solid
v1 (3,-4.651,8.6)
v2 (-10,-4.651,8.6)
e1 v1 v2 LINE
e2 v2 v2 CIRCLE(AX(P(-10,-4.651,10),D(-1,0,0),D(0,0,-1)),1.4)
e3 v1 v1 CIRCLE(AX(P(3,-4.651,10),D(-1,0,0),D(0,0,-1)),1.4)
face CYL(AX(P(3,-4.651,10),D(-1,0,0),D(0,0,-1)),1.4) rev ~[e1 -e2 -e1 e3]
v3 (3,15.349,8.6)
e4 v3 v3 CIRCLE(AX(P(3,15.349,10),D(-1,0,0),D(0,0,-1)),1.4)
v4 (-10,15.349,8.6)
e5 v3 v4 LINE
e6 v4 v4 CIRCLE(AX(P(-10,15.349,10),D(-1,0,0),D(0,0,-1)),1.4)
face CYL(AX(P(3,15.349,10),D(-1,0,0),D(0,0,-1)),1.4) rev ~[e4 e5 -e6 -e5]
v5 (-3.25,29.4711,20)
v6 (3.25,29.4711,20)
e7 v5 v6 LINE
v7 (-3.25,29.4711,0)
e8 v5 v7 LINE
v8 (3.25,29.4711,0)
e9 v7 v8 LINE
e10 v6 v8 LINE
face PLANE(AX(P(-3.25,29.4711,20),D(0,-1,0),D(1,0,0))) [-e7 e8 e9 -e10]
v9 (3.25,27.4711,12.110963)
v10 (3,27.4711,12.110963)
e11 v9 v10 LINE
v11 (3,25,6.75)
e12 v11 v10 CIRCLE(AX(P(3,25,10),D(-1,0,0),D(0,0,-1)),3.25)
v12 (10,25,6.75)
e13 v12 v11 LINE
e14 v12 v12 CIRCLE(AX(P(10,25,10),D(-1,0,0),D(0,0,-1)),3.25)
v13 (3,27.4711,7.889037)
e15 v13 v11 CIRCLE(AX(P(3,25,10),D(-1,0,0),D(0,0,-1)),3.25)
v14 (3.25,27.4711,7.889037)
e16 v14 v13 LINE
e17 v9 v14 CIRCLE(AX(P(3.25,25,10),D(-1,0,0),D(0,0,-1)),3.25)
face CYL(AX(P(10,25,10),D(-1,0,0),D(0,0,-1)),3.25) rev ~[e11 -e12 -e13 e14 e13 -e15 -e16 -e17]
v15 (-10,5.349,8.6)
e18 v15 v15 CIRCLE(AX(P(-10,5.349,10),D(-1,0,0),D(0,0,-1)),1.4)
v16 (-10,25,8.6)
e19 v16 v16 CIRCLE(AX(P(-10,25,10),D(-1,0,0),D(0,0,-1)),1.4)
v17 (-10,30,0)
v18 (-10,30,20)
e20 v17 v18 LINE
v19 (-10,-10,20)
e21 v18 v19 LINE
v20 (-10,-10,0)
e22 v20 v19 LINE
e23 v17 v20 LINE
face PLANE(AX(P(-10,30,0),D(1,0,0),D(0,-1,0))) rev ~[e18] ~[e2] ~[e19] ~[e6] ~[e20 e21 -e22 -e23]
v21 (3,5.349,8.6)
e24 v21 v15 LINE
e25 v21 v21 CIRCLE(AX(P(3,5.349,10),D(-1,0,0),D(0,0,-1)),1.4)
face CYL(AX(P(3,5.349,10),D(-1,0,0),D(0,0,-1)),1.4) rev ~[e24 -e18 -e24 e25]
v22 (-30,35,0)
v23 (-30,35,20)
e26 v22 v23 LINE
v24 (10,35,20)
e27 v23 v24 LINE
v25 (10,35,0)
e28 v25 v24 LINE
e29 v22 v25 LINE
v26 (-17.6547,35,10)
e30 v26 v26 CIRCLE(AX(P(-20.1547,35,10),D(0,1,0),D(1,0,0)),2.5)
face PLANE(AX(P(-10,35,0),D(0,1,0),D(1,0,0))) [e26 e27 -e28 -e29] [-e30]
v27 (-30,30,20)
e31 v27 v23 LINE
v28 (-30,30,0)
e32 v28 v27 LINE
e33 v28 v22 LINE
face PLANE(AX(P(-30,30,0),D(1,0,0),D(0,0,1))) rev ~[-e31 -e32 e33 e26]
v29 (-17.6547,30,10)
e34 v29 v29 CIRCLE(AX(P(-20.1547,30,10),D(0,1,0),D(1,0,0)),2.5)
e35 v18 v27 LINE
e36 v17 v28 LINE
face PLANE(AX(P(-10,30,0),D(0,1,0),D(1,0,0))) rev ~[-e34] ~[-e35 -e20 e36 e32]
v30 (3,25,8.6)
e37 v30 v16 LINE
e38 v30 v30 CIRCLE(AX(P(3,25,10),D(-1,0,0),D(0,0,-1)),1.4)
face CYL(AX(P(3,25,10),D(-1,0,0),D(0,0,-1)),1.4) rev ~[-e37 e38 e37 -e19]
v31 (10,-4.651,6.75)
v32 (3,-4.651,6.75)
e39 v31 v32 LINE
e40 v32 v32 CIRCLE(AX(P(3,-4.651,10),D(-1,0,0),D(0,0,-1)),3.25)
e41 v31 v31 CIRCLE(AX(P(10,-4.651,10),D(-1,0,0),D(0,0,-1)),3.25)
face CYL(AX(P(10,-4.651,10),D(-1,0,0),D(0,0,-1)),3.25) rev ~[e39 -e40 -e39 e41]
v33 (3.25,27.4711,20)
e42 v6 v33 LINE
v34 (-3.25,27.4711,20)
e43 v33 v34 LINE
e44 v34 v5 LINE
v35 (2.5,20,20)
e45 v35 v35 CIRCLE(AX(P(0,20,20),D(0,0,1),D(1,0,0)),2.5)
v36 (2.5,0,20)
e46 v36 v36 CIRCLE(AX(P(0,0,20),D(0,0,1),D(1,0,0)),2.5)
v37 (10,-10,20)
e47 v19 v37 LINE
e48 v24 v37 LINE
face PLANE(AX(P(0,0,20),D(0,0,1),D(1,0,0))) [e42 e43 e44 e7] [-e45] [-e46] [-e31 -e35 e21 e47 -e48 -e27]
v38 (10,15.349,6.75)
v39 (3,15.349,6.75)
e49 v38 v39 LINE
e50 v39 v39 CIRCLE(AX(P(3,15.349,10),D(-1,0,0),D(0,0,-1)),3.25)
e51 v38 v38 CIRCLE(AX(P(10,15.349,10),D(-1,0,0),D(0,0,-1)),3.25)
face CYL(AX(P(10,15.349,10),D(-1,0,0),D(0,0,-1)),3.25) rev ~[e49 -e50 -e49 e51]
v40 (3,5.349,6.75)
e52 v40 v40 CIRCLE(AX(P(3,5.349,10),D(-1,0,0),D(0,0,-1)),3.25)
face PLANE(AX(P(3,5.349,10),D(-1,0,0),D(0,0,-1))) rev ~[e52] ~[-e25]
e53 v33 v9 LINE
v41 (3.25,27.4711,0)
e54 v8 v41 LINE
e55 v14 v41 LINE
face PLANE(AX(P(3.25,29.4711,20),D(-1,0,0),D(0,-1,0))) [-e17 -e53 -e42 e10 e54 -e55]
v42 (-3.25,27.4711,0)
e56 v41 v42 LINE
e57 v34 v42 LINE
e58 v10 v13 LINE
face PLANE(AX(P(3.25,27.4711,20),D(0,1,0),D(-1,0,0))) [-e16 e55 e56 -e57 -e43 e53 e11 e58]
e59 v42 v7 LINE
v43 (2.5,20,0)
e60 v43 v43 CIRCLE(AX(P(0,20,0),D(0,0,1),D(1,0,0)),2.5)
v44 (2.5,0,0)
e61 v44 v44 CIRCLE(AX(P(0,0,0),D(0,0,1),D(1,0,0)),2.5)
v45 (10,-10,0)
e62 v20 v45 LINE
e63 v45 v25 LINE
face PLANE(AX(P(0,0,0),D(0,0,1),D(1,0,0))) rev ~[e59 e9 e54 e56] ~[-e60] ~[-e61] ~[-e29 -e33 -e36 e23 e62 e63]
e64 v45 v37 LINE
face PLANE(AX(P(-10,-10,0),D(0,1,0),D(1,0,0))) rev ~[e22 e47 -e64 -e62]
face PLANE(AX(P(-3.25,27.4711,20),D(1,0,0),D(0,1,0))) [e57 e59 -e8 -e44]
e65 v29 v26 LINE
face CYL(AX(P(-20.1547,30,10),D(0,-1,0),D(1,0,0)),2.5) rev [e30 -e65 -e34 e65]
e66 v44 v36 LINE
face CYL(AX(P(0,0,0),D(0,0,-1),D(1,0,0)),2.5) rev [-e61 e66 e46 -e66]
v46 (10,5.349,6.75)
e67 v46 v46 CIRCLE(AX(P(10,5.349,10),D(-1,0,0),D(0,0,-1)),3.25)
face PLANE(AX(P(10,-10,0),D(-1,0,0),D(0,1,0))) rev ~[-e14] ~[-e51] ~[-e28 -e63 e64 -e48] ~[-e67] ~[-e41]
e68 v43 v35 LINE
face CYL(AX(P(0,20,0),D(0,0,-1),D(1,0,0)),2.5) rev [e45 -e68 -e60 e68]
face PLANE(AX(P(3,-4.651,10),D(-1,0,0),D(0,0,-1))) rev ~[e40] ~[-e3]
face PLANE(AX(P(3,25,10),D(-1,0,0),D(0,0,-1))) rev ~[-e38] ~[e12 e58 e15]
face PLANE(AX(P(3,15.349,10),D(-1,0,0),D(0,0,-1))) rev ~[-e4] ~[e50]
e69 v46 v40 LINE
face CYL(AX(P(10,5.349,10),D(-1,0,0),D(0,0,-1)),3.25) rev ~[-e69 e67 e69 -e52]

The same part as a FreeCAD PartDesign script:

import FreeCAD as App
import Part
import Sketcher

V = App.Vector

doc = App.newDocument("Part")
body = doc.addObject("PartDesign::Body", "Body")

# Sketch on XY plane
sketch1 = doc.addObject("Sketcher::SketchObject", "Sketch")
body.addObject(sketch1)
sketch1.AttachmentSupport = (doc.XY_Plane, [""])
sketch1.MapMode = "FlatFace"
sketch1.addGeometry([
    Part.LineSegment(V(10, -10, 0), V(10, 30, 0)),  # 0
    Part.LineSegment(V(10, 30, 0), V(-10, 30, 0)),  # 1
    Part.LineSegment(V(-10, 30, 0), V(-10, -10, 0)),  # 2
    Part.LineSegment(V(-10, -10, 0), V(10, -10, 0)),  # 3
    Part.Circle(V(0, 0, 0), V(0, 0, 1), 2.5),  # 4
    Part.Circle(V(0, 20, 0), V(0, 0, 1), 2.5),  # 5
], False)
sketch1.addConstraint([
    Sketcher.Constraint("Coincident", 0, 2, 1, 1),
    Sketcher.Constraint("Coincident", 1, 2, 2, 1),
    Sketcher.Constraint("Coincident", 2, 2, 3, 1),
    Sketcher.Constraint("Coincident", 3, 2, 0, 1),
    Sketcher.Constraint("Vertical", 0),
    Sketcher.Constraint("Horizontal", 1),
    Sketcher.Constraint("Vertical", 2),
    Sketcher.Constraint("Horizontal", 3),
    Sketcher.Constraint("Coincident", 4, 3, -1, 1),
    Sketcher.Constraint("Equal", 4, 5),
    Sketcher.Constraint("PointOnObject", 5, 3, -2),
    Sketcher.Constraint("Diameter", 4, 5.0),
    Sketcher.Constraint("DistanceY", 0, 1, 0, 2, 40.0),
    Sketcher.Constraint("DistanceX", 1, 2, 1, 1, 20.0),
    Sketcher.Constraint("DistanceY", -1, 1, 5, 3, 20.0),
    Sketcher.Constraint("DistanceX", -1, 1, 0, 2, 10.0),
    Sketcher.Constraint("DistanceY", -1, 1, 0, 2, 30.0),
])
pad1 = doc.addObject("PartDesign::Pad", "Pad")
body.addObject(pad1)
pad1.Profile = sketch1
pad1.Length = 20

# Sketch on YZ plane
sketch2 = doc.addObject("Sketcher::SketchObject", "Sketch001")
body.addObject(sketch2)
sketch2.AttachmentSupport = (doc.YZ_Plane, [""])
sketch2.MapMode = "FlatFace"
sketch2.AttachmentOffset = App.Placement(V(0, 0, 10), App.Rotation())
sketch2.addGeometry([
    Part.Circle(V(25, 10, 0), V(0, 0, 1), 1.4),
    Part.Circle(V(5.349, 10, 0), V(0, 0, 1), 1.4),
    Part.Circle(V(-4.651, 10, 0), V(0, 0, 1), 1.4),
    Part.Circle(V(15.349, 10, 0), V(0, 0, 1), 1.4),
], False)
sketch2.addConstraint([
    Sketcher.Constraint("Equal", 0, 1),
    Sketcher.Constraint("Equal", 1, 2),
    Sketcher.Constraint("Equal", 2, 3),
    Sketcher.Constraint("Horizontal", 0, 3, 1, 3),
    Sketcher.Constraint("Horizontal", 1, 3, 2, 3),
    Sketcher.Constraint("Horizontal", 2, 3, 3, 3),
    Sketcher.Constraint("Diameter", 0, 2.8),
    Sketcher.Constraint("DistanceX", -1, 1, 0, 3, 25.0),
    Sketcher.Constraint("DistanceY", -1, 1, 0, 3, 10.0),
    Sketcher.Constraint("DistanceX", 2, 3, 1, 3, 10.0),
    Sketcher.Constraint("DistanceX", 1, 3, 3, 3, 10.0),
    Sketcher.Constraint("DistanceX", -1, 1, 1, 3, 5.349),
])
doc.recompute()
hole = doc.addObject("PartDesign::Hole", "Hole")
body.addObject(hole)
hole.Profile = sketch2
hole.ThreadType = "None"
hole.Diameter = 2.8
hole.DepthType = "ThroughAll"
hole.HoleCutType = "Counterbore"
hole.HoleCutDiameter = 6.5
hole.HoleCutDepth = 7

# Sketch on XZ plane
sketch3 = doc.addObject("Sketcher::SketchObject", "Sketch002")
body.addObject(sketch3)
sketch3.AttachmentSupport = (doc.XZ_Plane, [""])
sketch3.MapMode = "FlatFace"
sketch3.AttachmentOffset = App.Placement(V(0, 0, -30), App.Rotation())
sketch3.addGeometry([
    Part.LineSegment(V(10, 0, 0), V(-30, 0, 0)),  # 0
    Part.LineSegment(V(-30, 0, 0), V(-30, 20, 0)),  # 1
    Part.LineSegment(V(-30, 20, 0), V(10, 20, 0)),  # 2
    Part.LineSegment(V(10, 20, 0), V(10, 0, 0)),  # 3
    Part.Circle(V(-20.1547, 10, 0), V(0, 0, 1), 2.5),  # 4
], False)
sketch3.addConstraint([
    Sketcher.Constraint("Coincident", 0, 2, 1, 1),
    Sketcher.Constraint("Coincident", 1, 2, 2, 1),
    Sketcher.Constraint("Coincident", 2, 2, 3, 1),
    Sketcher.Constraint("Coincident", 3, 2, 0, 1),
    Sketcher.Constraint("Horizontal", 0),
    Sketcher.Constraint("Vertical", 1),
    Sketcher.Constraint("Horizontal", 2),
    Sketcher.Constraint("Vertical", 3),
    Sketcher.Constraint("PointOnObject", 0, 2, -1),
    Sketcher.Constraint("Diameter", 4, 5.0),
    Sketcher.Constraint("DistanceX", 0, 2, 0, 1, 40.0),
    Sketcher.Constraint("DistanceY", 1, 1, 1, 2, 20.0),
    Sketcher.Constraint("DistanceY", -1, 1, 4, 3, 10.0),
    Sketcher.Constraint("DistanceX", 0, 2, -1, 1, 30.0),
    Sketcher.Constraint("DistanceX", 4, 3, -1, 1, 20.1547),
])
pad2 = doc.addObject("PartDesign::Pad", "Pad001")
body.addObject(pad2)
pad2.Profile = sketch3
pad2.Length = 5
pad2.Reversed = True

# Sketch on XY plane
sketch4 = doc.addObject("Sketcher::SketchObject", "Sketch003")
body.addObject(sketch4)
sketch4.AttachmentSupport = (doc.XY_Plane, [""])
sketch4.MapMode = "FlatFace"
sketch4.AttachmentOffset = App.Placement(V(0, 0, 20), App.Rotation())
sketch4.addGeometry([
    Part.LineSegment(V(3.25, 29.4711, 0), V(-3.25, 29.4711, 0)),
    Part.LineSegment(V(-3.25, 29.4711, 0), V(-3.25, 27.4711, 0)),
    Part.LineSegment(V(-3.25, 27.4711, 0), V(3.25, 27.4711, 0)),
    Part.LineSegment(V(3.25, 27.4711, 0), V(3.25, 29.4711, 0)),
], False)
sketch4.addConstraint([
    Sketcher.Constraint("Coincident", 0, 2, 1, 1),
    Sketcher.Constraint("Coincident", 1, 2, 2, 1),
    Sketcher.Constraint("Coincident", 2, 2, 3, 1),
    Sketcher.Constraint("Coincident", 3, 2, 0, 1),
    Sketcher.Constraint("Horizontal", 0),
    Sketcher.Constraint("Vertical", 1),
    Sketcher.Constraint("Horizontal", 2),
    Sketcher.Constraint("Vertical", 3),
    Sketcher.Constraint("DistanceY", 1, 2, 1, 1, 2.0),
    Sketcher.Constraint("DistanceX", 0, 2, 0, 1, 6.5),
    Sketcher.Constraint("DistanceX", 0, 2, -1, 1, 3.25),
    Sketcher.Constraint("DistanceY", -1, 1, 0, 2, 29.471),
])
pocket1 = doc.addObject("PartDesign::Pocket", "Pocket")
body.addObject(pocket1)
pocket1.Profile = sketch4
pocket1.Type = "ThroughAll"

doc.recompute()
